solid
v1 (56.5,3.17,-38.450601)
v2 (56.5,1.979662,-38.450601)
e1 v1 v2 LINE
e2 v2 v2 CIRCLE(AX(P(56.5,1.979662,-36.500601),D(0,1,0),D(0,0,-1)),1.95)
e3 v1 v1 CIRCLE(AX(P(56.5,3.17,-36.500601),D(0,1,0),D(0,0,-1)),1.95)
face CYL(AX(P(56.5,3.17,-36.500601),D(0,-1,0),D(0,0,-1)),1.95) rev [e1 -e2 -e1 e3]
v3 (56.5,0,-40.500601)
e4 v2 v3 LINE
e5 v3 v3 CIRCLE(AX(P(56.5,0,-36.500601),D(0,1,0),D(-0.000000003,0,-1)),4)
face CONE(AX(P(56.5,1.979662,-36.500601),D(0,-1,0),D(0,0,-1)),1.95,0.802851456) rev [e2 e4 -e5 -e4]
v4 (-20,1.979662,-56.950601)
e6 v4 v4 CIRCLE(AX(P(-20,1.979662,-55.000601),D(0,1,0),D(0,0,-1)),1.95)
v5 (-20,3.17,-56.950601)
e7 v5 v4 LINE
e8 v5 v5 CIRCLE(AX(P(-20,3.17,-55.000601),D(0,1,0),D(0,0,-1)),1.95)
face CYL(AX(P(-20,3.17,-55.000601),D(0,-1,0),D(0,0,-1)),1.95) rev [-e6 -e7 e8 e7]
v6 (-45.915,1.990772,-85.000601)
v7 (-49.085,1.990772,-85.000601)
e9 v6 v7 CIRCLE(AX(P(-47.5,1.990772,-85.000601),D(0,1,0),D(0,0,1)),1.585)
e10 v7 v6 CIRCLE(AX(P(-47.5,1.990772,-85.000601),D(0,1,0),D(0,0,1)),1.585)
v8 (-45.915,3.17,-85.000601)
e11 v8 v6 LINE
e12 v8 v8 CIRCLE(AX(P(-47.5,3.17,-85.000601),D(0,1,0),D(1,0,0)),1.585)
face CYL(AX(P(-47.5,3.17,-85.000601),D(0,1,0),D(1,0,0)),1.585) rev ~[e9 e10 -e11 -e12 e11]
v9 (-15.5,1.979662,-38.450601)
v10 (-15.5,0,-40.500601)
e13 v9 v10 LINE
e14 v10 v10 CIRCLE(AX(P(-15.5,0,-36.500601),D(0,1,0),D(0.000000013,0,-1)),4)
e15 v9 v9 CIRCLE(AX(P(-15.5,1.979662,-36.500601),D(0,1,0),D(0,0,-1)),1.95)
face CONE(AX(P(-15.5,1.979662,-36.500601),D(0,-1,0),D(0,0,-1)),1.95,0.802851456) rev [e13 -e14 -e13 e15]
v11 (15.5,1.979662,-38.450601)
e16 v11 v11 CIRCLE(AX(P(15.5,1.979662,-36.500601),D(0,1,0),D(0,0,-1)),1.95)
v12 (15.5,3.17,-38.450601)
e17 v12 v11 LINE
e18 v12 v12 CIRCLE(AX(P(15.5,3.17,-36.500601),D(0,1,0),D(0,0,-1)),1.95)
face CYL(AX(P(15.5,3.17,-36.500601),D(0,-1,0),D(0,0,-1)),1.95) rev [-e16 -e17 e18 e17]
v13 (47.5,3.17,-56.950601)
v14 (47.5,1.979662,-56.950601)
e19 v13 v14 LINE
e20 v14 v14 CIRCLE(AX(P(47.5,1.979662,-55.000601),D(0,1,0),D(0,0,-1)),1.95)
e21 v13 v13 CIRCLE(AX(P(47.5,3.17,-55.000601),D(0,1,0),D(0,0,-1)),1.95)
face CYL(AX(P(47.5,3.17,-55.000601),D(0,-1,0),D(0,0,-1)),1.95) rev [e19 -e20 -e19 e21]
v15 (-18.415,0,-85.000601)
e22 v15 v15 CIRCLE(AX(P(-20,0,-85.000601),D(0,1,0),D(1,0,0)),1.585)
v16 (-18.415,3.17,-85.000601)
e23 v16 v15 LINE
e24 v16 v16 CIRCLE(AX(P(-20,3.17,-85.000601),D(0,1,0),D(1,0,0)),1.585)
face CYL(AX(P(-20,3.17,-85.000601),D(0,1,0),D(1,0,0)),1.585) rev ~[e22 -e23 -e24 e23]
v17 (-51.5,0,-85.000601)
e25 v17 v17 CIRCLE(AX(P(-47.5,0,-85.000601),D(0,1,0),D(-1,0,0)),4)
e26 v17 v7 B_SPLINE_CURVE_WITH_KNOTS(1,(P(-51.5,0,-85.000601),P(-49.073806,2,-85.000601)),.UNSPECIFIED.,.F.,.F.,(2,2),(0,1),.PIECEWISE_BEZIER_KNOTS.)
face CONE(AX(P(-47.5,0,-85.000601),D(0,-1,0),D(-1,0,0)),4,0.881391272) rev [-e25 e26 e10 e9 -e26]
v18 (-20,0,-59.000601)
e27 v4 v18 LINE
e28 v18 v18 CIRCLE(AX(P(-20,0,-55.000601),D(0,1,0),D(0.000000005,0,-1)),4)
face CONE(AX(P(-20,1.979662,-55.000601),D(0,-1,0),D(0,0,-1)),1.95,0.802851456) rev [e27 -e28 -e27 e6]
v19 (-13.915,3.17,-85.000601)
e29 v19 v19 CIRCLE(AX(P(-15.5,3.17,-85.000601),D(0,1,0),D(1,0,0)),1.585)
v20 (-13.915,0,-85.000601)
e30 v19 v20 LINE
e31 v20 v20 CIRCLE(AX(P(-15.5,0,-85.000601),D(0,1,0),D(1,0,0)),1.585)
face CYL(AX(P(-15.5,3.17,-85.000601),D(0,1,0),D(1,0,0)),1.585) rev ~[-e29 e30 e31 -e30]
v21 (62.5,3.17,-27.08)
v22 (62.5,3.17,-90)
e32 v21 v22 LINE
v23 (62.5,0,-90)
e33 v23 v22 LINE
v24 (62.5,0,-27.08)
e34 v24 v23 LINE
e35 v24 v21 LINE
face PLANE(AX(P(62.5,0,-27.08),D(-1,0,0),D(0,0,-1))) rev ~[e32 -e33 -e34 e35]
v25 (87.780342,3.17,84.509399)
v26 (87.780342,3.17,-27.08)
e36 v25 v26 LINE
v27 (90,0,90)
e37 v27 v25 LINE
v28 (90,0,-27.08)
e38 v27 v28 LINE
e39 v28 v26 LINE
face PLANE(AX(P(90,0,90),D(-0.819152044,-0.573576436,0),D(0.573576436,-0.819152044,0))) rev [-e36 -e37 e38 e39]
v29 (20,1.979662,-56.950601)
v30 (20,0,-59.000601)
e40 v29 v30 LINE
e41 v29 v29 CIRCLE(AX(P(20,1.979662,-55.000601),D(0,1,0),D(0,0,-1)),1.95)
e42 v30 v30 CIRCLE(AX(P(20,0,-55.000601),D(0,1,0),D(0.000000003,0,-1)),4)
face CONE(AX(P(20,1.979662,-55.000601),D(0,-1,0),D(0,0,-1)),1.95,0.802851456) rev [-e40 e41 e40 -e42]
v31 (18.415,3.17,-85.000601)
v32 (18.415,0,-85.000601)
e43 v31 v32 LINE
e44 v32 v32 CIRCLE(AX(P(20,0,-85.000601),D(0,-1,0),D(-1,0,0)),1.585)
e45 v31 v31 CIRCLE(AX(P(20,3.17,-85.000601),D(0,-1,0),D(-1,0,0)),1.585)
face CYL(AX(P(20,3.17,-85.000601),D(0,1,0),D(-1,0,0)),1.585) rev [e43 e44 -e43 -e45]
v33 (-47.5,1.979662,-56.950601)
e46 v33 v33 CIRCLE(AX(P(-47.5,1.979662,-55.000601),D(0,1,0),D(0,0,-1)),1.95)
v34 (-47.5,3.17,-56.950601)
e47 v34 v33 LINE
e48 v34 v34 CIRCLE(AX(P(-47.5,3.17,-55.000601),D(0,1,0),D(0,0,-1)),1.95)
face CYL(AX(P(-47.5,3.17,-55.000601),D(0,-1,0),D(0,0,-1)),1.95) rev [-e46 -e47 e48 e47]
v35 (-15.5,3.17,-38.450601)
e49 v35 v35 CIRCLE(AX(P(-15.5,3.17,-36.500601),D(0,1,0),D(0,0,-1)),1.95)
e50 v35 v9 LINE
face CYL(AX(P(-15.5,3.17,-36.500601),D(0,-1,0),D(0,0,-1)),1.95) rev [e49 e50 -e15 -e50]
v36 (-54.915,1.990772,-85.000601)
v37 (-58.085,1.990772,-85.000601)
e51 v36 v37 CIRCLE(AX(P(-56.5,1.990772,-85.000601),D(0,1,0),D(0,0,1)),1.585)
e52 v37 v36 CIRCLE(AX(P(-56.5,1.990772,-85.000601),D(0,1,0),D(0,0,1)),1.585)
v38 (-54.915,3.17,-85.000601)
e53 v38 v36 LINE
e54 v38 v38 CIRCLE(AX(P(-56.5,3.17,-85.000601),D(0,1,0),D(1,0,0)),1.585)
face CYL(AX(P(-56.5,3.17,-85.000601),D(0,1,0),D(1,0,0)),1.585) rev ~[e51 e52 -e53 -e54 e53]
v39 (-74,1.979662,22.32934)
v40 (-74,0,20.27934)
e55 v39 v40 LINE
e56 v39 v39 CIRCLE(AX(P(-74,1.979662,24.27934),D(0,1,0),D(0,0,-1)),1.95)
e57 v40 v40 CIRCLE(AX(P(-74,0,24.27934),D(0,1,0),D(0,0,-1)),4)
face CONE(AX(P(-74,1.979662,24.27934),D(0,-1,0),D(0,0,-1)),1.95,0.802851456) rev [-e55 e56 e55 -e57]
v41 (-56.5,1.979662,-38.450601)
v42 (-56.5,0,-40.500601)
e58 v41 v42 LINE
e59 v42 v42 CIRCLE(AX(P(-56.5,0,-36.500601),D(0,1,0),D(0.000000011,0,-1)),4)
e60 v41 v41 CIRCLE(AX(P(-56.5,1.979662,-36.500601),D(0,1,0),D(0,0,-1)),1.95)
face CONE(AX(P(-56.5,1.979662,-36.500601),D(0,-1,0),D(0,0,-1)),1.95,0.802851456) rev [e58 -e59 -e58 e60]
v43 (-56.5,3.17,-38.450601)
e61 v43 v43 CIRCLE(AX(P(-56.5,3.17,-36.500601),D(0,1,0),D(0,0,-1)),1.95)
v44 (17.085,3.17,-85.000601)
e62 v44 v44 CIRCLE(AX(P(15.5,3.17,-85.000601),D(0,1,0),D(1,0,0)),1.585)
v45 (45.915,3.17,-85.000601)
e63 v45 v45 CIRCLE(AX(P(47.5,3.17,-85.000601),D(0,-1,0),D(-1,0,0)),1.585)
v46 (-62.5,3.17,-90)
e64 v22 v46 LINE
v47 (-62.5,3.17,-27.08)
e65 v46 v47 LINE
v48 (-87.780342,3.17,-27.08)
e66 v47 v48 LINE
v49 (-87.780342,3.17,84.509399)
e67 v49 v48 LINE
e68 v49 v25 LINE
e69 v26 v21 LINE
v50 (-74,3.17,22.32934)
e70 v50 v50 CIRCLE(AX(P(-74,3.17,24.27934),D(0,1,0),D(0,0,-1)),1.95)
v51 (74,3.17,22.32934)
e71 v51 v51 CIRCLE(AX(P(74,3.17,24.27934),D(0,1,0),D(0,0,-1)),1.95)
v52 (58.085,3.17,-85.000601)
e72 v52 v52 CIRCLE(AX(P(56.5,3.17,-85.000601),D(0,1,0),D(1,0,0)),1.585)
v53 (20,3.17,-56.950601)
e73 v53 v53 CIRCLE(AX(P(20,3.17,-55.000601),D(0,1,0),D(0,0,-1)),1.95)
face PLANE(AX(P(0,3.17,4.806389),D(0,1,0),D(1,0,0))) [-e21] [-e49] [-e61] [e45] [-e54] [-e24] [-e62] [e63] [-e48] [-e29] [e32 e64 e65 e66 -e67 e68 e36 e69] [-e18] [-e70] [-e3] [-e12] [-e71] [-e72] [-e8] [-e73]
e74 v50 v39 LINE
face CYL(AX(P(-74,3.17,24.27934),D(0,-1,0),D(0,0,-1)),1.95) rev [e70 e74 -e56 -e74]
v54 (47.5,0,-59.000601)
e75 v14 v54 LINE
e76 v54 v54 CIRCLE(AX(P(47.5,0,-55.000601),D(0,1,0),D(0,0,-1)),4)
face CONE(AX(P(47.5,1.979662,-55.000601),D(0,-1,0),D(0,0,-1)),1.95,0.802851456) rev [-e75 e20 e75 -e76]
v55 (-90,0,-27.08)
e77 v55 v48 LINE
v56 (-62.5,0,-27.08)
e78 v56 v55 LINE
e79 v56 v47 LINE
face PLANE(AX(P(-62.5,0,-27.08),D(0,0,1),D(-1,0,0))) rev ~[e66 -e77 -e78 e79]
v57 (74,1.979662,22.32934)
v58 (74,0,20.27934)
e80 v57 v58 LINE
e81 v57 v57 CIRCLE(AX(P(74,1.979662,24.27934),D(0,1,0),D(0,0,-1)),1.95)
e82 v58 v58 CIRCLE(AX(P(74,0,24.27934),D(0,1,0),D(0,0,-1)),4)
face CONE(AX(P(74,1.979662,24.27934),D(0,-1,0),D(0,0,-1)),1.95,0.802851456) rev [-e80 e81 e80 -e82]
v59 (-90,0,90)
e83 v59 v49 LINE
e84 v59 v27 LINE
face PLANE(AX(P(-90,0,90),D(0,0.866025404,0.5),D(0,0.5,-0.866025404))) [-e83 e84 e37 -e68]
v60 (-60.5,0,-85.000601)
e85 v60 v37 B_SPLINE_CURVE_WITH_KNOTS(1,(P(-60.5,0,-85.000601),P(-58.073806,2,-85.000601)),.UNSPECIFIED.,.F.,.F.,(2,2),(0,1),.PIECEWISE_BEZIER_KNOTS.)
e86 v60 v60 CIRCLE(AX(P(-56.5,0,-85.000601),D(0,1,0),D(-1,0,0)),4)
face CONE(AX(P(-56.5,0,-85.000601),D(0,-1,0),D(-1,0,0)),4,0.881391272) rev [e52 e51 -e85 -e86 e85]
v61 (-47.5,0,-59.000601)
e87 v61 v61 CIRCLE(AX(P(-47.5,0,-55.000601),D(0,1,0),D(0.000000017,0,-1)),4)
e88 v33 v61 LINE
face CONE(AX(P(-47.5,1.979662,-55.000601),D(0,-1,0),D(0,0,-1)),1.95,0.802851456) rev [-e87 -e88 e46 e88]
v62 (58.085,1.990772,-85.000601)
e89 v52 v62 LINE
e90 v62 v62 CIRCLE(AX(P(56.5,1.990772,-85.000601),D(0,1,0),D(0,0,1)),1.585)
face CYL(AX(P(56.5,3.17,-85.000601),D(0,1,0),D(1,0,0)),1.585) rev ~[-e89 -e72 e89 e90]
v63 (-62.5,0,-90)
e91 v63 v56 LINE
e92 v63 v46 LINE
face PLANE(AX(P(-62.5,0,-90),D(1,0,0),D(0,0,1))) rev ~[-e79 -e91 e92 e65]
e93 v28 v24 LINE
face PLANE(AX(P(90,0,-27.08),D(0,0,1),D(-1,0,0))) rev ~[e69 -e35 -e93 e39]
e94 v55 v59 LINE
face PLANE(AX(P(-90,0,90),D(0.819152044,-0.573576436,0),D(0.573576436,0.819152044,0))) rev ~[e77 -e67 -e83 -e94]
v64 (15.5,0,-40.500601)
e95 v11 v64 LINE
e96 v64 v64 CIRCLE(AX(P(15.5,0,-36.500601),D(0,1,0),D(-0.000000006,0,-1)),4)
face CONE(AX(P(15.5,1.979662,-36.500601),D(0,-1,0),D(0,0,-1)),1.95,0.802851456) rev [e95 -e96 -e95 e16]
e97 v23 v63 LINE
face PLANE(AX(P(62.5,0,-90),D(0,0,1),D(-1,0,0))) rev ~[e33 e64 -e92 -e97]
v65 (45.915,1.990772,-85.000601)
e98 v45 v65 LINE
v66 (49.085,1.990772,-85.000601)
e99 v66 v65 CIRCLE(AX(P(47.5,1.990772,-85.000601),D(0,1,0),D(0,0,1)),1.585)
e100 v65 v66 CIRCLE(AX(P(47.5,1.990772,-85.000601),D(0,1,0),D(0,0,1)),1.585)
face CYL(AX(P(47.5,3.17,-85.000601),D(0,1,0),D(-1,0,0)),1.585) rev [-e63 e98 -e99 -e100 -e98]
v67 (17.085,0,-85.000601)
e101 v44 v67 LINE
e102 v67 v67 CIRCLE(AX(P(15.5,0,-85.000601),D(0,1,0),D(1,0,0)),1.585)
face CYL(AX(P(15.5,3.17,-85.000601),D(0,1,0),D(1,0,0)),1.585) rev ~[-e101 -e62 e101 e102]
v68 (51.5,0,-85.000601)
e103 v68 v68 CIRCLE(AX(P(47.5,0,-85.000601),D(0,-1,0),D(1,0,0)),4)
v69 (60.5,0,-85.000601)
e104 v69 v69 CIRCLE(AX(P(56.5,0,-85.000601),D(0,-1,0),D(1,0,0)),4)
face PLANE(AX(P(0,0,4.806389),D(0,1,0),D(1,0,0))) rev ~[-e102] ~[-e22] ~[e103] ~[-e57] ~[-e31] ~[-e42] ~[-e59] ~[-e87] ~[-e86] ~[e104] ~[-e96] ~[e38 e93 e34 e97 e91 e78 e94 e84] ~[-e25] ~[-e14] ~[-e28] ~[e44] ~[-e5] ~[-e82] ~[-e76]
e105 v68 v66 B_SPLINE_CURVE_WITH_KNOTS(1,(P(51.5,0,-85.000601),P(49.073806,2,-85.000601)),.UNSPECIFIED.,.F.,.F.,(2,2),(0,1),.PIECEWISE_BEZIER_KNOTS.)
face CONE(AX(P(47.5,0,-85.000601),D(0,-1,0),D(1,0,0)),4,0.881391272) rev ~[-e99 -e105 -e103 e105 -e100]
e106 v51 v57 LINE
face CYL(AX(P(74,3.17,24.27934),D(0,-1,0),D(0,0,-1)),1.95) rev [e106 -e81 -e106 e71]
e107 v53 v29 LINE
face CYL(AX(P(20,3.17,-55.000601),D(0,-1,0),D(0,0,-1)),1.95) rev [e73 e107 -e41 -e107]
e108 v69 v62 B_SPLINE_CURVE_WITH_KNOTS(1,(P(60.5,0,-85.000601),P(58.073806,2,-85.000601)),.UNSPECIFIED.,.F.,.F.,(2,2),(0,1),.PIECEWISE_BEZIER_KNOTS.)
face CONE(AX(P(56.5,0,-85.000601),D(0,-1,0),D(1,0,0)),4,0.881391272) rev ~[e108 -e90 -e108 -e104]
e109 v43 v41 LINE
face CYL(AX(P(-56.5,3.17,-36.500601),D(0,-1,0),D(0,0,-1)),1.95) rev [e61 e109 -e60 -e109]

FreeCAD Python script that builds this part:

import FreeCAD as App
import Part
import Sketcher
from FreeCAD import Vector
Q = App.Units.Quantity

doc = App.newDocument("Part")
body = doc.addObject("PartDesign::Body", "Body")

sketch1 = body.newObject("Sketcher::SketchObject", "Sketch")
sketch1.AttachmentSupport = (doc.getObject("XZ_Plane"), [""])
sketch1.MapMode = "FlatFace"
sketch1.addGeometry([
    Part.LineSegment(Vector(-62.5, -90, 0), Vector(-62.5, -27.08, 0)),
    Part.LineSegment(Vector(-62.5, -27.08, 0), Vector(-90, -27.08, 0)),
    Part.LineSegment(Vector(-90, -27.08, 0), Vector(-90, 90, 0)),
    Part.LineSegment(Vector(-90, 90, 0), Vector(90, 90, 0)),
    Part.LineSegment(Vector(90, 90, 0), Vector(90, -27.08, 0)),
    Part.LineSegment(Vector(90, -27.08, 0), Vector(62.5, -27.08, 0)),
    Part.LineSegment(Vector(62.5, -27.08, 0), Vector(62.5, -90, 0)),
    Part.LineSegment(Vector(62.5, -90, 0), Vector(-62.5, -90, 0)),
], False)
sketch1.addConstraint([
    Sketcher.Constraint("Coincident", 0, 2, 1, 1),
    Sketcher.Constraint("Coincident", 1, 2, 2, 1),
    Sketcher.Constraint("Coincident", 2, 2, 3, 1),
    Sketcher.Constraint("Coincident", 3, 2, 4, 1),
    Sketcher.Constraint("Coincident", 4, 2, 5, 1),
    Sketcher.Constraint("Coincident", 5, 2, 6, 1),
    Sketcher.Constraint("Coincident", 6, 2, 7, 1),
    Sketcher.Constraint("Coincident", 7, 2, 0, 1),
    Sketcher.Constraint("Vertical", 0),
    Sketcher.Constraint("Horizontal", 1),
    Sketcher.Constraint("Vertical", 2),
    Sketcher.Constraint("Horizontal", 3),
    Sketcher.Constraint("Vertical", 4),
    Sketcher.Constraint("Horizontal", 5),
    Sketcher.Constraint("Vertical", 6),
    Sketcher.Constraint("Horizontal", 7),
    Sketcher.Constraint("Symmetric", 1, 2, 4, 2, -2),
    Sketcher.Constraint("Equal", 1, 5),
    Sketcher.Constraint("DistanceX", 3, 1, 3, 2, Q("180 mm")),
    Sketcher.Constraint("DistanceX", 7, 2, 7, 1, Q("125 mm")),
    Sketcher.Constraint("DistanceY", -1, 1, 2, 2, Q("90 mm")),
    Sketcher.Constraint("DistanceY", 6, 2, -1, 1, Q("90 mm")),
    Sketcher.Constraint("DistanceY", 0, 1, 0, 2, Q("62.92 mm")),
])
pad1 = body.newObject("PartDesign::Pad", "Pad")
pad1.Profile = sketch1
pad1.Length = 3.17
pad1.Reversed = True

sketch2 = body.newObject("Sketcher::SketchObject", "Sketch001")
sketch2.AttachmentSupport = (doc.getObject("YZ_Plane"), [""])
sketch2.MapMode = "FlatFace"
sketch2.AttachmentOffset = App.Placement(Vector(0, 0, -90), App.Rotation())
sketch2.addGeometry([
    Part.LineSegment(Vector(3.17, 84.509399, 0), Vector(0, 90, 0)),
    Part.LineSegment(Vector(0, 90, 0), Vector(3.17, 90, 0)),
    Part.LineSegment(Vector(3.17, 90, 0), Vector(3.17, 84.509399, 0)),
], False)
sketch2.addConstraint([
    Sketcher.Constraint("Coincident", 0, 2, 1, 1),
    Sketcher.Constraint("Coincident", 1, 2, 2, 1),
    Sketcher.Constraint("Coincident", 2, 2, 0, 1),
    Sketcher.Constraint("Horizontal", 1),
    Sketcher.Constraint("Vertical", 2),
    Sketcher.Constraint("PointOnObject", 0, 2, -2),
    Sketcher.Constraint("Angle", 0, Q("120 deg")),
    Sketcher.Constraint("DistanceY", -1, 1, 0, 2, Q("90 mm")),
    Sketcher.Constraint("DistanceX", 1, 1, 1, 2, Q("3.17 mm")),
])
pocket1 = body.newObject("PartDesign::Pocket", "Pocket")
pocket1.Profile = sketch2
pocket1.Type = "UpToFirst"
pocket1.Reversed = True

sketch3 = body.newObject("Sketcher::SketchObject", "Sketch002")
sketch3.AttachmentSupport = (doc.getObject("XY_Plane"), [""])
sketch3.MapMode = "FlatFace"
sketch3.AttachmentOffset = App.Placement(Vector(0, 0, 90), App.Rotation())
sketch3.addGeometry([
    Part.LineSegment(Vector(-90, 0, 0), Vector(-90, 3.17, 0)),
    Part.LineSegment(Vector(-90, 3.17, 0), Vector(-87.780342, 3.17, 0)),
    Part.LineSegment(Vector(-87.780342, 3.17, 0), Vector(-90, 0, 0)),
], False)
sketch3.addConstraint([
    Sketcher.Constraint("Coincident", 0, 2, 1, 1),
    Sketcher.Constraint("Coincident", 1, 2, 2, 1),
    Sketcher.Constraint("Coincident", 2, 2, 0, 1),
    Sketcher.Constraint("Vertical", 0),
    Sketcher.Constraint("Horizontal", 1),
    Sketcher.Constraint("PointOnObject", 2, 2, -1),
    Sketcher.Constraint("Angle", 2, Q("-125 deg")),
    Sketcher.Constraint("DistanceX", 0, 2, -1, 1, Q("90 mm")),
    Sketcher.Constraint("DistanceY", 0, 1, 0, 2, Q("3.17 mm")),
])
pocket2 = body.newObject("PartDesign::Pocket", "Pocket001")
pocket2.Profile = sketch3
pocket2.Length = 117.08
doc.recompute()

mirrored = body.newObject("PartDesign::Mirrored", "Mirrored")
mirrored.Originals = [pocket2]
mirrored.MirrorPlane = (doc.getObject("YZ_Plane"), [""])
body.Tip = mirrored

sketch4 = body.newObject("Sketcher::SketchObject", "Sketch003")
sketch4.AttachmentSupport = (doc.getObject("XZ_Plane"), [""])
sketch4.MapMode = "FlatFace"
sketch4.AttachmentOffset = App.Placement(Vector(0, 0, -3.17), App.Rotation())
sketch4.addGeometry(Part.Circle(Vector(74, 24.27934, 0), Vector(0, 0, 1), 1.585), False)
sketch4.addConstraint([
    Sketcher.Constraint("Diameter", 0, Q("3.17 mm")),
    Sketcher.Constraint("DistanceX", -1, 1, 0, 3, Q("74 mm")),
    Sketcher.Constraint("DistanceY", -1, 1, 0, 3, Q("24.27934 mm")),
])
pocket3 = body.newObject("PartDesign::Pocket", "Pocket002")
pocket3.Profile = sketch4
pocket3.Length = 3.17
pocket3.Reversed = True
doc.recompute()

mirrored2 = body.newObject("PartDesign::Mirrored", "Mirrored001")
mirrored2.Originals = [pocket3]
mirrored2.MirrorPlane = (doc.getObject("YZ_Plane"), [""])
body.Tip = mirrored2

sketch5 = body.newObject("Sketcher::SketchObject", "Sketch004")
sketch5.AttachmentSupport = (doc.getObject("XZ_Plane"), [""])
sketch5.MapMode = "FlatFace"
sketch5.AttachmentOffset = App.Placement(Vector(0, 0, -3.17), App.Rotation())
sketch5.addGeometry(Part.Circle(Vector(-56.5, -36.500601, 0), Vector(0, 0, 1), 1.585), False)
sketch5.addConstraint([
    Sketcher.Constraint("Diameter", 0, Q("3.17 mm")),
    Sketcher.Constraint("DistanceX", 0, 3, -1, 1, Q("56.5 mm")),
    Sketcher.Constraint("DistanceY", 0, 3, -1, 1, Q("36.500601 mm")),
])
pocket4 = body.newObject("PartDesign::Pocket", "Pocket003")
pocket4.Profile = sketch5
pocket4.Type = "UpToFirst"
pocket4.Reversed = True

sketch6 = body.newObject("Sketcher::SketchObject", "Sketch005")
sketch6.AttachmentSupport = (doc.getObject("XZ_Plane"), [""])
sketch6.MapMode = "FlatFace"
sketch6.AttachmentOffset = App.Placement(Vector(0, 0, -3.17), App.Rotation())
sketch6.addGeometry(Part.Circle(Vector(-15.5, -36.500601, 0), Vector(0, 0, 1), 1.585), False)
sketch6.addConstraint([
    Sketcher.Constraint("Diameter", 0, Q("3.17 mm")),
    Sketcher.Constraint("DistanceX", 0, 3, -1, 1, Q("15.5 mm")),
    Sketcher.Constraint("DistanceY", 0, 3, -1, 1, Q("36.500601 mm")),
])
pocket5 = body.newObject("PartDesign::Pocket", "Pocket004")
pocket5.Profile = sketch6
pocket5.Type = "UpToFirst"
pocket5.Reversed = True

sketch7 = body.newObject("Sketcher::SketchObject", "Sketch006")
sketch7.AttachmentSupport = (doc.getObject("XZ_Plane"), [""])
sketch7.MapMode = "FlatFace"
sketch7.AttachmentOffset = App.Placement(Vector(0, 0, -3.17), App.Rotation())
sketch7.addGeometry(Part.Circle(Vector(-15.5, -85.000601, 0), Vector(0, 0, 1), 1.585), False)
sketch7.addConstraint([
    Sketcher.Constraint("Diameter", 0, Q("3.17 mm")),
    Sketcher.Constraint("DistanceX", 0, 3, -1, 1, Q("15.5 mm")),
    Sketcher.Constraint("DistanceY", 0, 3, -1, 1, Q("85.000601 mm")),
])
pocket6 = body.newObject("PartDesign::Pocket", "Pocket005")
pocket6.Profile = sketch7
pocket6.Type = "UpToFirst"
pocket6.Reversed = True

sketch8 = body.newObject("Sketcher::SketchObject", "Sketch007")
sketch8.AttachmentSupport = (doc.getObject("XZ_Plane"), [""])
sketch8.MapMode = "FlatFace"
sketch8.AttachmentOffset = App.Placement(Vector(0, 0, -3.17), App.Rotation())
sketch8.addGeometry(Part.Circle(Vector(-56.5, -85.000601, 0), Vector(0, 0, 1), 1.585), False)
sketch8.addConstraint([
    Sketcher.Constraint("Diameter", 0, Q("3.17 mm")),
    Sketcher.Constraint("DistanceX", 0, 3, -1, 1, Q("56.5 mm")),
    Sketcher.Constraint("DistanceY", 0, 3, -1, 1, Q("85.000601 mm")),
])
pocket7 = body.newObject("PartDesign::Pocket", "Pocket006")
pocket7.Profile = sketch8
pocket7.Type = "UpToFirst"
pocket7.Reversed = True

sketch9 = body.newObject("Sketcher::SketchObject", "Sketch008")
sketch9.AttachmentSupport = (doc.getObject("XZ_Plane"), [""])
sketch9.MapMode = "FlatFace"
sketch9.AttachmentOffset = App.Placement(Vector(0, 0, -3.17), App.Rotation())
sketch9.addGeometry(Part.Circle(Vector(56.5, -85.000601, 0), Vector(0, 0, 1), 1.585), False)
sketch9.addConstraint([
    Sketcher.Constraint("Diameter", 0, Q("3.17 mm")),
    Sketcher.Constraint("DistanceX", -1, 1, 0, 3, Q("56.5 mm")),
    Sketcher.Constraint("DistanceY", 0, 3, -1, 1, Q("85.000601 mm")),
])
pocket8 = body.newObject("PartDesign::Pocket", "Pocket007")
pocket8.Profile = sketch9
pocket8.Type = "UpToFirst"
pocket8.Reversed = True

sketch10 = body.newObject("Sketcher::SketchObject", "Sketch009")
sketch10.AttachmentSupport = (doc.getObject("XZ_Plane"), [""])
sketch10.MapMode = "FlatFace"
sketch10.AttachmentOffset = App.Placement(Vector(0, 0, -3.17), App.Rotation())
sketch10.addGeometry(Part.Circle(Vector(15.5, -85.000601, 0), Vector(0, 0, 1), 1.585), False)
sketch10.addConstraint([
    Sketcher.Constraint("Diameter", 0, Q("3.17 mm")),
    Sketcher.Constraint("DistanceX", -1, 1, 0, 3, Q("15.5 mm")),
    Sketcher.Constraint("DistanceY", 0, 3, -1, 1, Q("85.000601 mm")),
])
pocket9 = body.newObject("PartDesign::Pocket", "Pocket008")
pocket9.Profile = sketch10
pocket9.Type = "UpToFirst"
pocket9.Reversed = True

sketch11 = body.newObject("Sketcher::SketchObject", "Sketch010")
sketch11.AttachmentSupport = (doc.getObject("XZ_Plane"), [""])
sketch11.MapMode = "FlatFace"
sketch11.AttachmentOffset = App.Placement(Vector(0, 0, -3.17), App.Rotation())
sketch11.addGeometry(Part.Circle(Vector(15.5, -36.500601, 0), Vector(0, 0, 1), 1.585), False)
sketch11.addConstraint([
    Sketcher.Constraint("Diameter", 0, Q("3.17 mm")),
    Sketcher.Constraint("DistanceX", -1, 1, 0, 3, Q("15.5 mm")),
    Sketcher.Constraint("DistanceY", 0, 3, -1, 1, Q("36.500601 mm")),
])
pocket10 = body.newObject("PartDesign::Pocket", "Pocket009")
pocket10.Profile = sketch11
pocket10.Type = "UpToFirst"
pocket10.Reversed = True

sketch12 = body.newObject("Sketcher::SketchObject", "Sketch011")
sketch12.AttachmentSupport = (doc.getObject("XZ_Plane"), [""])
sketch12.MapMode = "FlatFace"
sketch12.AttachmentOffset = App.Placement(Vector(0, 0, -3.17), App.Rotation())
sketch12.addGeometry(Part.Circle(Vector(56.5, -36.500601, 0), Vector(0, 0, 1), 1.585), False)
sketch12.addConstraint([
    Sketcher.Constraint("Diameter", 0, Q("3.17 mm")),
    Sketcher.Constraint("DistanceX", -1, 1, 0, 3, Q("56.5 mm")),
    Sketcher.Constraint("DistanceY", 0, 3, -1, 1, Q("36.500601 mm")),
])
pocket11 = body.newObject("PartDesign::Pocket", "Pocket010")
pocket11.Profile = sketch12
pocket11.Type = "UpToFirst"
pocket11.Reversed = True

sketch13 = body.newObject("Sketcher::SketchObject", "Sketch012")
sketch13.AttachmentSupport = (doc.getObject("XZ_Plane"), [""])
sketch13.MapMode = "FlatFace"
sketch13.AttachmentOffset = App.Placement(Vector(0, 0, -3.17), App.Rotation())
sketch13.addGeometry([
    Part.Circle(Vector(-20, -85.000601, 0), Vector(0, 0, 1), 1.585),
    Part.Circle(Vector(-47.5, -85.000601, 0), Vector(0, 0, 1), 1.585),
    Part.Circle(Vector(-47.5, -55.000601, 0), Vector(0, 0, 1), 1.585),
    Part.Circle(Vector(-20, -55.000601, 0), Vector(0, 0, 1), 1.585),
], False)
sketch13.addConstraint([
    Sketcher.Constraint("Equal", 0, 1),
    Sketcher.Constraint("Equal", 1, 2),
    Sketcher.Constraint("Equal", 2, 3),
    Sketcher.Constraint("Horizontal", 0, 3, 1, 3),
    Sketcher.Constraint("Horizontal", 2, 3, 3, 3),
    Sketcher.Constraint("Vertical", 1, 3, 2, 3),
    Sketcher.Constraint("Vertical", 0, 3, 3, 3),
    Sketcher.Constraint("Diameter", 0, Q("3.17 mm")),
    Sketcher.Constraint("DistanceX", 0, 3, -1, 1, Q("20 mm")),
    Sketcher.Constraint("DistanceY", 1, 3, 2, 3, Q("30 mm")),
    Sketcher.Constraint("DistanceX", 1, 3, -1, 1, Q("47.5 mm")),
    Sketcher.Constraint("DistanceY", 0, 3, -1, 1, Q("85.000601 mm")),
])
pocket12 = body.newObject("PartDesign::Pocket", "Pocket011")
pocket12.Profile = sketch13
pocket12.Length = 3.17
pocket12.Reversed = True
doc.recompute()

mirrored3 = body.newObject("PartDesign::Mirrored", "Mirrored002")
mirrored3.Originals = [pocket12]
mirrored3.MirrorPlane = (doc.getObject("YZ_Plane"), [""])
body.Tip = mirrored3

sketch14 = body.newObject("Sketcher::SketchObject", "Sketch013")
sketch14.AttachmentSupport = (doc.getObject("XZ_Plane"), [""])
sketch14.MapMode = "FlatFace"
sketch14.addGeometry([
    Part.Circle(Vector(-20, -55.000601, 0), Vector(0, 0, 1), 4),
    Part.Circle(Vector(-15.5, -36.500601, 0), Vector(0, 0, 1), 4),
    Part.Circle(Vector(-56.5, -36.500601, 0), Vector(0, 0, 1), 4),
    Part.Circle(Vector(-47.5, -55.000601, 0), Vector(0, 0, 1), 4),
    Part.Circle(Vector(-56.5, -85.000601, 0), Vector(0, 0, 1), 4),
    Part.Circle(Vector(-47.5, -85.000601, 0), Vector(0, 0, 1), 4),
    Part.Circle(Vector(-74, 24.27934, 0), Vector(0, 0, 1), 4),
], False)
sketch14.addConstraint([
    Sketcher.Constraint("Equal", 0, 1),
    Sketcher.Constraint("Equal", 1, 2),
    Sketcher.Constraint("Equal", 2, 3),
    Sketcher.Constraint("Equal", 3, 4),
    Sketcher.Constraint("Equal", 4, 5),
    Sketcher.Constraint("Equal", 5, 6),
    Sketcher.Constraint("Horizontal", 1, 3, 2, 3),
    Sketcher.Constraint("Horizontal", 0, 3, 3, 3),
    Sketcher.Constraint("Horizontal", 4, 3, 5, 3),
    Sketcher.Constraint("Vertical", 2, 3, 4, 3),
    Sketcher.Constraint("Vertical", 3, 3, 5, 3),
    Sketcher.Constraint("Diameter", 0, Q("8 mm")),
    Sketcher.Constraint("DistanceX", 0, 3, -1, 1, Q("20 mm")),
    Sketcher.Constraint("DistanceX", 6, 3, -1, 1, Q("74 mm")),
    Sketcher.Constraint("DistanceX", 2, 3, 1, 3, Q("41 mm")),
    Sketcher.Constraint("DistanceX", 2, 3, 3, 3, Q("9 mm")),
    Sketcher.Constraint("DistanceY", 4, 3, 3, 3, Q("30 mm")),
    Sketcher.Constraint("DistanceX", 1, 3, -1, 1, Q("15.5 mm")),
    Sketcher.Constraint("DistanceY", 0, 3, 1, 3, Q("18.5 mm")),
    Sketcher.Constraint("DistanceY", 0, 3, -1, 1, Q("55.000601 mm")),
    Sketcher.Constraint("DistanceY", -1, 1, 6, 3, Q("24.27934 mm")),
])
pocket13 = body.newObject("PartDesign::Pocket", "Pocket012")
pocket13.Profile = sketch14
pocket13.Length = 2
pocket13.TaperAngle = -50.5
doc.recompute()

mirrored4 = body.newObject("PartDesign::Mirrored", "Mirrored003")
mirrored4.Originals = [pocket13]
mirrored4.MirrorPlane = (doc.getObject("YZ_Plane"), [""])
body.Tip = mirrored4

sketch15 = body.newObject("Sketcher::SketchObject", "Sketch014")
sketch15.AttachmentSupport = (doc.getObject("YZ_Plane"), [""])
sketch15.MapMode = "FlatFace"
sketch15.AttachmentOffset = App.Placement(Vector(0, 0, 74), App.Rotation())
sketch15.addGeometry([
    Part.LineSegment(Vector(3.17, 24.27934, 0), Vector(0, 24.27934, 0)),
    Part.LineSegment(Vector(0, 24.27934, 0), Vector(0, 20.27934, 0)),
    Part.LineSegment(Vector(0, 20.27934, 0), Vector(1.979662, 22.32934, 0)),
    Part.LineSegment(Vector(1.979662, 22.32934, 0), Vector(3.17, 22.32934, 0)),
    Part.LineSegment(Vector(3.17, 22.32934, 0), Vector(3.17, 24.27934, 0)),
], False)
sketch15.addGeometry(Part.LineSegment(Vector(0, 24.27934, 0), Vector(3.17, 24.27934, 0)), True)
sketch15.addConstraint([
    Sketcher.Constraint("Coincident", 0, 2, 1, 1),
    Sketcher.Constraint("Coincident", 1, 2, 2, 1),
    Sketcher.Constraint("Coincident", 2, 2, 3, 1),
    Sketcher.Constraint("Coincident", 3, 2, 4, 1),
    Sketcher.Constraint("Coincident", 4, 2, 0, 1),
    Sketcher.Constraint("Horizontal", 0),
    Sketcher.Constraint("Vertical", 1),
    Sketcher.Constraint("Horizontal", 3),
    Sketcher.Constraint("Vertical", 4),
    Sketcher.Constraint("Horizontal", 5),
    Sketcher.Constraint("Coincident", 5, 1, 0, 2),
    Sketcher.Constraint("PointOnObject", 0, 2, -2),
    Sketcher.Constraint("Vertical", 3, 2, 5, 2),
    Sketcher.Constraint("DistanceY", 1, 2, 1, 1, Q("4 mm")),
    Sketcher.Constraint("Angle", 2, Q("46 deg")),
    Sketcher.Constraint("DistanceX", 0, 2, 0, 1, Q("3.17 mm")),
    Sketcher.Constraint("DistanceY", 4, 1, 4, 2, Q("1.95 mm")),
    Sketcher.Constraint("DistanceY", -1, 1, 0, 2, Q("24.27934 mm")),
])
groove = body.newObject("PartDesign::Groove", "Groove")
groove.Profile = sketch15
groove.ReferenceAxis = (sketch15, ["Axis0"])
groove.Angle = 360
doc.recompute()

datumline = body.newObject("PartDesign::Line", "DatumLine")
datumline.Placement = App.Placement(Vector(0, 0, 0), App.Rotation(Vector(0, 0, 1), Vector(-0.27668369, 0, -0.960961048)))
linearpattern = body.newObject("PartDesign::LinearPattern", "LinearPattern")
linearpattern.Originals = [groove]
linearpattern.Direction = (datumline, [""])
linearpattern.Mode = "offset"
linearpattern.Offset = 63.24912
linearpattern.Occurrences = 2
body.Tip = linearpattern
doc.recompute()

datumline2 = body.newObject("PartDesign::Line", "DatumLine001")
datumline2.Placement = App.Placement(Vector(0, 0, 0), App.Rotation(Vector(0, 0, 1), Vector(-0.317017421, 0, -0.948419714)))
linearpattern2 = body.newObject("PartDesign::LinearPattern", "LinearPattern001")
linearpattern2.Originals = [groove]
linearpattern2.Direction = (datumline2, [""])
linearpattern2.Mode = "offset"
linearpattern2.Offset = 83.591621
linearpattern2.Occurrences = 2
body.Tip = linearpattern2
doc.recompute()

datumline3 = body.newObject("PartDesign::Line", "DatumLine002")
datumline3.Placement = App.Placement(Vector(0, 0, 0), App.Rotation(Vector(0, 0, 1), Vector(-0.562948869, 0, -0.826491725)))
linearpattern3 = body.newObject("PartDesign::LinearPattern", "LinearPattern002")
linearpattern3.Originals = [groove]
linearpattern3.Direction = (datumline3, [""])
linearpattern3.Mode = "offset"
linearpattern3.Offset = 95.923454
linearpattern3.Occurrences = 2
body.Tip = linearpattern3
doc.recompute()

datumline4 = body.newObject("PartDesign::Line", "DatumLine003")
datumline4.Placement = App.Placement(Vector(0, 0, 0), App.Rotation(Vector(0, 0, 1), Vector(-0.693464331, 0, -0.720490959)))
linearpattern4 = body.newObject("PartDesign::LinearPattern", "LinearPattern003")
linearpattern4.Originals = [groove]
linearpattern4.Direction = (datumline4, [""])
linearpattern4.Mode = "offset"
linearpattern4.Offset = 84.359061
linearpattern4.Occurrences = 2
body.Tip = linearpattern4
doc.recompute()

datumline5 = body.newObject("PartDesign::Line", "DatumLine004")
datumline5.Placement = App.Placement(Vector(0, 0, 0), App.Rotation(Vector(0, 0, 1), Vector(-0.827270441, 0, -0.561803895)))
linearpattern5 = body.newObject("PartDesign::LinearPattern", "LinearPattern004")
linearpattern5.Originals = [groove]
linearpattern5.Direction = (datumline5, [""])
linearpattern5.Mode = "offset"
linearpattern5.Offset = 108.187112
linearpattern5.Occurrences = 2
body.Tip = linearpattern5
doc.recompute()

datumline6 = body.newObject("PartDesign::Line", "DatumLine005")
datumline6.Placement = App.Placement(Vector(0, 0, 0), App.Rotation(Vector(0, 0, 1), Vector(-0.764421967, 0, -0.64471626)))
linearpattern6 = body.newObject("PartDesign::LinearPattern", "LinearPattern005")
linearpattern6.Originals = [groove]
linearpattern6.Direction = (datumline6, [""])
linearpattern6.Mode = "offset"
linearpattern6.Offset = 122.968732
linearpattern6.Occurrences = 2
body.Tip = linearpattern6
doc.recompute()

datumline7 = body.newObject("PartDesign::Line", "DatumLine006")
datumline7.Placement = App.Placement(Vector(0, 0, 0), App.Rotation(Vector(0, 0, 1), Vector(-0.837481861, 0, -0.546465124)))
linearpattern7 = body.newObject("PartDesign::LinearPattern", "LinearPattern006")
linearpattern7.Originals = [groove]
linearpattern7.Direction = (datumline7, [""])
linearpattern7.Mode = "offset"
linearpattern7.Offset = 145.077769
linearpattern7.Occurrences = 2
body.Tip = linearpattern7
doc.recompute()

datumline8 = body.newObject("PartDesign::Line", "DatumLine007")
datumline8.Placement = App.Placement(Vector(0, 0, 0), App.Rotation(Vector(0, 0, 1), Vector(-0.90650247, 0, -0.422200511)))
linearpattern8 = body.newObject("PartDesign::LinearPattern", "LinearPattern007")
linearpattern8.Originals = [groove]
linearpattern8.Direction = (datumline8, [""])
linearpattern8.Mode = "offset"
linearpattern8.Offset = 143.959894
linearpattern8.Occurrences = 2
body.Tip = linearpattern8
doc.recompute()

linearpattern9 = body.newObject("PartDesign::LinearPattern", "LinearPattern008")
linearpattern9.Originals = [groove]
linearpattern9.Direction = (doc.getObject("X_Axis"), [""])
linearpattern9.Mode = "offset"
linearpattern9.Offset = 148
linearpattern9.Occurrences = 2
linearpattern9.Reversed = True
body.Tip = linearpattern9

doc.recompute()
